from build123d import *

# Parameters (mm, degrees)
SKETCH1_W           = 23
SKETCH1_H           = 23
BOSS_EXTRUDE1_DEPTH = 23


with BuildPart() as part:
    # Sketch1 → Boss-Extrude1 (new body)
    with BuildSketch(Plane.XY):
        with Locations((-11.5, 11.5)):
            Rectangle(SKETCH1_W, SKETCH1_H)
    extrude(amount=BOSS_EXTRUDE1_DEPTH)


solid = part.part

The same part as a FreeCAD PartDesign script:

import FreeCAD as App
import Part
import Sketcher


def add_polygon(sketch, points):
    """Adds a closed chain of lines whose ends are joined by coincident constraints."""
    first, n = sketch.GeometryCount, len(points)
    for a, b in zip(points, points[1:] + points[:1]):
        sketch.addGeometry(Part.LineSegment(App.Vector(*a, 0), App.Vector(*b, 0)), False)
    for i in range(n):
        sketch.addConstraint(Sketcher.Constraint("Coincident", first + i, 2, first + (i + 1) % n, 1))

doc = App.newDocument("Part")
body = doc.addObject("PartDesign::Body", "Body")

# Sketch on XY plane
sketch1 = doc.addObject("Sketcher::SketchObject", "Sketch")
body.addObject(sketch1)
sketch1.AttachmentSupport = (doc.XY_Plane, [""])
sketch1.MapMode = "FlatFace"
add_polygon(sketch1, [(-23, 23), (-23, 0), (0, 0), (0, 23)])  # lines 0-3
sketch1.addConstraint(Sketcher.Constraint("Vertical", 0))
sketch1.addConstraint(Sketcher.Constraint("Horizontal", 1))
sketch1.addConstraint(Sketcher.Constraint("Vertical", 2))
sketch1.addConstraint(Sketcher.Constraint("Horizontal", 3))
sketch1.addConstraint(Sketcher.Constraint("Coincident", 1, 2, -1, 1))
sketch1.addConstraint(Sketcher.Constraint("Equal", 3, 0))
sketch1.addConstraint(Sketcher.Constraint("DistanceX", 1, 1, 1, 2, 23.0))
pad1 = doc.addObject("PartDesign::Pad", "Pad")
body.addObject(pad1)
pad1.Profile = sketch1
pad1.Length = 23

doc.recompute()
